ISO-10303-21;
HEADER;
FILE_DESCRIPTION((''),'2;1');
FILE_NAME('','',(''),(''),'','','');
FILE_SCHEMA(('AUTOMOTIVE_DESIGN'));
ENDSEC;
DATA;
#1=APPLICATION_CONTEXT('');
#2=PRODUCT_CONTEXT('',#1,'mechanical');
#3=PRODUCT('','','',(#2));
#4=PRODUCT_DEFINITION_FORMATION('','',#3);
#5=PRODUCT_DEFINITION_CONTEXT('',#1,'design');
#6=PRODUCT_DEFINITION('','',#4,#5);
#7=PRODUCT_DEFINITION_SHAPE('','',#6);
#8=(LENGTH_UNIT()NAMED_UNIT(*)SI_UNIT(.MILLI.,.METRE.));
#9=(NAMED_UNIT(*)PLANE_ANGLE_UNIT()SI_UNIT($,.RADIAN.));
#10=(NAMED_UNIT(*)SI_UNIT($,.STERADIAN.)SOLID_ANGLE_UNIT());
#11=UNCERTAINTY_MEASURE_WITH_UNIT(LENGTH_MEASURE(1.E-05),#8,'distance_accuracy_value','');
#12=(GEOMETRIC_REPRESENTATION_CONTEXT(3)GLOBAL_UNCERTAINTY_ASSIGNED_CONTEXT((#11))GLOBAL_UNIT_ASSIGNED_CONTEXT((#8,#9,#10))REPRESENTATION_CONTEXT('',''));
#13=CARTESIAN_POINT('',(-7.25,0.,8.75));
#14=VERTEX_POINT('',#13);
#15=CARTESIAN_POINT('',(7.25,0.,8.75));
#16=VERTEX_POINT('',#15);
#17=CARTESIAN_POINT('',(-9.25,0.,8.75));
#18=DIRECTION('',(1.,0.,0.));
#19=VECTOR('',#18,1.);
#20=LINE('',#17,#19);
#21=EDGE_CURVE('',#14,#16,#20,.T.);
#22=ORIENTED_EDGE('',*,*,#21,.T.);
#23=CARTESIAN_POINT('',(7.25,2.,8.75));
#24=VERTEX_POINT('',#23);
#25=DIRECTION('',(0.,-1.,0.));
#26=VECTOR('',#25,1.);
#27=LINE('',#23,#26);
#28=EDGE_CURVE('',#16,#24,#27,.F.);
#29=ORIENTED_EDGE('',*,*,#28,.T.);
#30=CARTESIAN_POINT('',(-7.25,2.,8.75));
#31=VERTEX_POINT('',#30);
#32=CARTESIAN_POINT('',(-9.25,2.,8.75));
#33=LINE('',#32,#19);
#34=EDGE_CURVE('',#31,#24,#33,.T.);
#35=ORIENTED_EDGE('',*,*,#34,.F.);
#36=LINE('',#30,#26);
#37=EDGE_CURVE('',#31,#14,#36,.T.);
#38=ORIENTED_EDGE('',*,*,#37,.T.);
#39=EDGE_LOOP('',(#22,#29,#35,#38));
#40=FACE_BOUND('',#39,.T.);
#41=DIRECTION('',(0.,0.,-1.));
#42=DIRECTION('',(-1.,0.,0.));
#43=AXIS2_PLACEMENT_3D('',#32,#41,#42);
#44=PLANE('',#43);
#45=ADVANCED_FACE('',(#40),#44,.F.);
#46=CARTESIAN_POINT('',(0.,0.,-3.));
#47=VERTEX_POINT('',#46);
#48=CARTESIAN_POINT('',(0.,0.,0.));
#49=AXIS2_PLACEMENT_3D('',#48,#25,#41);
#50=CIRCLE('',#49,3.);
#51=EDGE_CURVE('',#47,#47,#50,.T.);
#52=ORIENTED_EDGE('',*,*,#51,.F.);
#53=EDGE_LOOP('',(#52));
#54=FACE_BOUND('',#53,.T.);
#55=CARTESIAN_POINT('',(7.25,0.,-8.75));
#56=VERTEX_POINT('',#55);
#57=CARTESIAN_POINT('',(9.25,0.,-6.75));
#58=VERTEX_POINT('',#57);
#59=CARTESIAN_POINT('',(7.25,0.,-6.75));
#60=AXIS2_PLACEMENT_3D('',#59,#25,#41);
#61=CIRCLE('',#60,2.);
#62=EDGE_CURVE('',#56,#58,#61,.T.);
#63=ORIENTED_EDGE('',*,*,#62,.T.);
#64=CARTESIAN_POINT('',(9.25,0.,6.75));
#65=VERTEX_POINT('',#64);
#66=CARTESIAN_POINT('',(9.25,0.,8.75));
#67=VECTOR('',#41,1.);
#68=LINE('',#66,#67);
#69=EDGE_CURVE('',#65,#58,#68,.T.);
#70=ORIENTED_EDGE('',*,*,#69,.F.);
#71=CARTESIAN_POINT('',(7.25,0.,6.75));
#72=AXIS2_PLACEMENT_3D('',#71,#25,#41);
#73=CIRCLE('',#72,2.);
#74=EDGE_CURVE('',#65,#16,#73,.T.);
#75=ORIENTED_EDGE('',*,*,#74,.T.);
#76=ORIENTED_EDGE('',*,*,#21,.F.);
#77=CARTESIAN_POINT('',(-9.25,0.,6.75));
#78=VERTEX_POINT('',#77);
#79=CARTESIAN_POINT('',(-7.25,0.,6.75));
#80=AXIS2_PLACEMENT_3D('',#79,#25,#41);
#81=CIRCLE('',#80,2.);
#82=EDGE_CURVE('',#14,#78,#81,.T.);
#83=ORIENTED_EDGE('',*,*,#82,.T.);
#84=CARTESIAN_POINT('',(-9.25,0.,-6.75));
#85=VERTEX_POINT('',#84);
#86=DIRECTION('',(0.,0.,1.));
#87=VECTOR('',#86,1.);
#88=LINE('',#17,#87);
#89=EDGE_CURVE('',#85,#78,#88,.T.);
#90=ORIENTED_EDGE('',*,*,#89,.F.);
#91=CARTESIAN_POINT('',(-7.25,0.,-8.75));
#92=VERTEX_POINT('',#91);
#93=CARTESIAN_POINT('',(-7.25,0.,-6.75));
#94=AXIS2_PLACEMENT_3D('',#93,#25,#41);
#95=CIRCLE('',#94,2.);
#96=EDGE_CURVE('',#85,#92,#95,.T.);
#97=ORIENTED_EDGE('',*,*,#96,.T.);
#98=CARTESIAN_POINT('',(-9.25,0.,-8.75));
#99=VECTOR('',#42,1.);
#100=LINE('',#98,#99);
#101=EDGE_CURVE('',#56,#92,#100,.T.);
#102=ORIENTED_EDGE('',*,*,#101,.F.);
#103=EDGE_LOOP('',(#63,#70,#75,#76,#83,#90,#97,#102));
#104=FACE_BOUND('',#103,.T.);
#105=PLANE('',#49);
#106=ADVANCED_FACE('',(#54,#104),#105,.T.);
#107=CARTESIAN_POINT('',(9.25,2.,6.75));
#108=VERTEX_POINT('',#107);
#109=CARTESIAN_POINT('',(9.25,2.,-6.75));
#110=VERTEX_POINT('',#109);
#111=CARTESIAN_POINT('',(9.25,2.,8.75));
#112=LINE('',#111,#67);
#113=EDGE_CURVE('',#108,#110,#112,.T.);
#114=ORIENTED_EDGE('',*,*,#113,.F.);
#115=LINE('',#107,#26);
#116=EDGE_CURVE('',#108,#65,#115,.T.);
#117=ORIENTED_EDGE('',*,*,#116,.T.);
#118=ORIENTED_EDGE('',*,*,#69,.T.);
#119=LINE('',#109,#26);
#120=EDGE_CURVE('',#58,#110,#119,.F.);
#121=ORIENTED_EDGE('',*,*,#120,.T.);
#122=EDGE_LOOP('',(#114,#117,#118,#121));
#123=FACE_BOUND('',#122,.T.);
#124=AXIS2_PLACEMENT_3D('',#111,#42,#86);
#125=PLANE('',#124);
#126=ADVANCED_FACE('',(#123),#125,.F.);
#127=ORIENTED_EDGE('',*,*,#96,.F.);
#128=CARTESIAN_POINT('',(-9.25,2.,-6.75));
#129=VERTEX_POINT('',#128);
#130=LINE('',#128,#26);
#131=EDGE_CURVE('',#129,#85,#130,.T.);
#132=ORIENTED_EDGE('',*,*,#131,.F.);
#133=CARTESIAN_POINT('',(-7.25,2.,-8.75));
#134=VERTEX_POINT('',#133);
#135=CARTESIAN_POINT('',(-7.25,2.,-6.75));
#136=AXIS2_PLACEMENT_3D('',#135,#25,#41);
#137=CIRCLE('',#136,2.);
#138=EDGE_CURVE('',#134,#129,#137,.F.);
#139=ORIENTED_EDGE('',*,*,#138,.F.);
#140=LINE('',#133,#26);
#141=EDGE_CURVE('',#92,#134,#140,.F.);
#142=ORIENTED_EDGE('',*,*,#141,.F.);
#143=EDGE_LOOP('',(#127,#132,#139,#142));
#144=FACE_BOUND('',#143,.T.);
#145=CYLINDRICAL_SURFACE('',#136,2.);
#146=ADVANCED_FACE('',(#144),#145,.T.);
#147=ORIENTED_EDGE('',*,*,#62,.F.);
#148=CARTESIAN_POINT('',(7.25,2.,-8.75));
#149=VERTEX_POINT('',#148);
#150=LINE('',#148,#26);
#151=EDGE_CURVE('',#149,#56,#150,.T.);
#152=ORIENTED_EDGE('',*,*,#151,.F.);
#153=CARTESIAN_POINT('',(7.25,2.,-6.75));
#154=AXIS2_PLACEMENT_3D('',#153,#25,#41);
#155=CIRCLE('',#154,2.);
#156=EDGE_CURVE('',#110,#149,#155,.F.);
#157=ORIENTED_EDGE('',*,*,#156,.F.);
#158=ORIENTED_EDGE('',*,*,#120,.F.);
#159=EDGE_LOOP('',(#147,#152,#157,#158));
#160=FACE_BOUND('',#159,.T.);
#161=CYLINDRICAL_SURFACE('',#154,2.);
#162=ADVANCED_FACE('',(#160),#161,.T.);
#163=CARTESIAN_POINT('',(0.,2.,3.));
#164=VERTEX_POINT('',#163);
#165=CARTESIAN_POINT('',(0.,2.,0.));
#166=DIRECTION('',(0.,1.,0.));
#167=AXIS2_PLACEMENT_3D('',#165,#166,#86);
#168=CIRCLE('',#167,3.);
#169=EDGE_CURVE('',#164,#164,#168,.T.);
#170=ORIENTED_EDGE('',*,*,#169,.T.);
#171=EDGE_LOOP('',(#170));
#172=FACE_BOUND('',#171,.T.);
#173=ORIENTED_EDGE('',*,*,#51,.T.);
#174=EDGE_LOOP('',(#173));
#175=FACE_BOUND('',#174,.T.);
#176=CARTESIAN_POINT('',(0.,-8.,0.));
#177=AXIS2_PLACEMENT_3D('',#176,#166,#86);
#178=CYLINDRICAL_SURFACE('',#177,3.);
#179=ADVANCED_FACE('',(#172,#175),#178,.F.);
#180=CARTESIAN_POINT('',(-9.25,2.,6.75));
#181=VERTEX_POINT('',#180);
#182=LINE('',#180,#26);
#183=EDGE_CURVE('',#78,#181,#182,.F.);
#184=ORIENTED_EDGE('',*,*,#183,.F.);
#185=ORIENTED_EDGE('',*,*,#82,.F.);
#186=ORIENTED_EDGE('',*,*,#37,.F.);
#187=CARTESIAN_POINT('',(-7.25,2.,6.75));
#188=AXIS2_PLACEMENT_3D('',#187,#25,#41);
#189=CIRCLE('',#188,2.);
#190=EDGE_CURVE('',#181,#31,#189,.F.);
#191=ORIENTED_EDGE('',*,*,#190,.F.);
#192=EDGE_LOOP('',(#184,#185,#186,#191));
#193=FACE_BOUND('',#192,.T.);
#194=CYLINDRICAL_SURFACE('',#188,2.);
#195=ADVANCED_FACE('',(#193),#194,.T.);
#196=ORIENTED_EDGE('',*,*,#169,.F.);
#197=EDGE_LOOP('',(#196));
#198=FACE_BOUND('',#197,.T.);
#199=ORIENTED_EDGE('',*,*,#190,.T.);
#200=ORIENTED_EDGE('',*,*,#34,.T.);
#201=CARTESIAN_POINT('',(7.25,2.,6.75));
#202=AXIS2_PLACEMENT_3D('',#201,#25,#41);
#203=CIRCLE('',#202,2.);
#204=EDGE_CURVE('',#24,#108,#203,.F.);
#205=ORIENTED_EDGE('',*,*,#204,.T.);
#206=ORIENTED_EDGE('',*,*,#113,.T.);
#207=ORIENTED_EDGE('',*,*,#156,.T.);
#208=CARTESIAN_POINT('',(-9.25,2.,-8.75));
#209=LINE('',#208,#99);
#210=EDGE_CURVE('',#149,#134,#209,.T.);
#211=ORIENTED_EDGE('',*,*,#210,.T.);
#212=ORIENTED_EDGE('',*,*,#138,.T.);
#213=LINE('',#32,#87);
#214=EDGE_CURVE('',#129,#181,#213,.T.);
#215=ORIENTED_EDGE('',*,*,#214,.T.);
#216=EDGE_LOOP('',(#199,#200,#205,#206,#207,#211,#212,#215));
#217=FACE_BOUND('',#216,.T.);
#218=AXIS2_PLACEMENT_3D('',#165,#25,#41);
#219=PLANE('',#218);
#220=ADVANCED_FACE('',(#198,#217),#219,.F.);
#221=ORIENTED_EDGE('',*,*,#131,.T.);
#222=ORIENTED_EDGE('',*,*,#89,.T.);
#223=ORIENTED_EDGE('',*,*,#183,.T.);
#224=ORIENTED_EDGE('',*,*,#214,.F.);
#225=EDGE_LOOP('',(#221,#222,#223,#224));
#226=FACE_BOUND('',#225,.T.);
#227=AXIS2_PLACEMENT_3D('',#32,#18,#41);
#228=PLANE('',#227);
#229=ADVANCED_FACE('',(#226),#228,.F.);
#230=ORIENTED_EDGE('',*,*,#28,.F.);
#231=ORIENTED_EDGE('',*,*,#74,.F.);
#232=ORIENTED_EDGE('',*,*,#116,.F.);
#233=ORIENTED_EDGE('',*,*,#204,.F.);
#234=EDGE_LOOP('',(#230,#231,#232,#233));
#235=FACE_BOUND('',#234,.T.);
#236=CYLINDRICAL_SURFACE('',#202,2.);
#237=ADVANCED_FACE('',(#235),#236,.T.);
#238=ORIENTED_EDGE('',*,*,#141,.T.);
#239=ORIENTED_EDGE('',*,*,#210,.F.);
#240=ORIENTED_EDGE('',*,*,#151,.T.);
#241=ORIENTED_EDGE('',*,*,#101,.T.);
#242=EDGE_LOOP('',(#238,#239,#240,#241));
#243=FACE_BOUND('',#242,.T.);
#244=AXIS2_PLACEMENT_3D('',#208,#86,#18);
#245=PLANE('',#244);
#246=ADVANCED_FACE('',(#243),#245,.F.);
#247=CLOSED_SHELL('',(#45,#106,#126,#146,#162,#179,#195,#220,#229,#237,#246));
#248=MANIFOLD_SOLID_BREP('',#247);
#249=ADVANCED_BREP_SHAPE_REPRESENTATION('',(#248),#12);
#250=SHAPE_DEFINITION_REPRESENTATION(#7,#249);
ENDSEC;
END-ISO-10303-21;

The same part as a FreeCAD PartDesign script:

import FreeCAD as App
import Part
import Sketcher

V = App.Vector
Q = App.Units.Quantity


def edges_at(feature, points):
    """Names of the edges that pass closest to the given points."""
    edges = feature.Shape.Edges
    near = lambda p: min(range(len(edges)), key=lambda i: edges[i].distToShape(Part.Vertex(*p))[0])
    return sorted({f"Edge{near(p) + 1}" for p in points})


def add_polygon(sketch, points):
    """Adds a closed chain of lines whose ends are joined by coincident constraints."""
    first, n = sketch.GeometryCount, len(points)
    for a, b in zip(points, points[1:] + points[:1]):
        sketch.addGeometry(Part.LineSegment(App.Vector(*a, 0), App.Vector(*b, 0)), False)
    for i in range(n):
        sketch.addConstraint(Sketcher.Constraint("Coincident", first + i, 2, first + (i + 1) % n, 1))

doc = App.newDocument("Part")
body = doc.addObject("PartDesign::Body", "Body")

# Sketch on XZ plane
sketch1 = doc.addObject("Sketcher::SketchObject", "Sketch")
body.addObject(sketch1)
sketch1.AttachmentSupport = (doc.XZ_Plane, [""])
sketch1.MapMode = "FlatFace"
add_polygon(sketch1, [(-9.25, -8.75), (-9.25, 8.75), (9.25, 8.75), (9.25, -8.75)])  # lines 0-3
sketch1.addConstraint(Sketcher.Constraint("Vertical", 0))
sketch1.addConstraint(Sketcher.Constraint("Horizontal", 1))
sketch1.addConstraint(Sketcher.Constraint("Vertical", 2))
sketch1.addConstraint(Sketcher.Constraint("Horizontal", 3))
sketch1.addConstraint(Sketcher.Constraint("Symmetric", 0, 2, 2, 2, -1, 1))
sketch1.addConstraint(Sketcher.Constraint("DistanceX", 1, 1, 1, 2, Q("18.5 mm")))
sketch1.addConstraint(Sketcher.Constraint("DistanceY", 0, 1, 0, 2, Q("17.5 mm")))
pad1 = doc.addObject("PartDesign::Pad", "Pad")
body.addObject(pad1)
pad1.Profile = sketch1
pad1.Length = 2
pad1.Reversed = True
doc.recompute()

fillet = doc.addObject("PartDesign::Fillet", "Fillet")
body.addObject(fillet)
fillet.Base = (pad1, edges_at(pad1, [
    (9.25, 1, 8.75),
    (-9.25, 1, 8.75),
    (-9.25, 1, -8.75),
    (9.25, 1, -8.75),
]))
fillet.Radius = 2

# Sketch on XZ plane
sketch2 = doc.addObject("Sketcher::SketchObject", "Sketch001")
body.addObject(sketch2)
sketch2.AttachmentSupport = (doc.XZ_Plane, [""])
sketch2.MapMode = "FlatFace"
sketch2.AttachmentOffset = App.Placement(V(0, 0, -2), App.Rotation())
sketch2.addGeometry(Part.Circle(V(0, 0, 0), V(0, 0, 1), 3), False)
sketch2.addConstraint(Sketcher.Constraint("Coincident", 0, 3, -1, 1))
sketch2.addConstraint(Sketcher.Constraint("Diameter", 0, Q("6 mm")))
pocket1 = doc.addObject("PartDesign::Pocket", "Pocket")
body.addObject(pocket1)
pocket1.Profile = sketch2
pocket1.Length = 10
pocket1.Reversed = True

doc.recompute()
